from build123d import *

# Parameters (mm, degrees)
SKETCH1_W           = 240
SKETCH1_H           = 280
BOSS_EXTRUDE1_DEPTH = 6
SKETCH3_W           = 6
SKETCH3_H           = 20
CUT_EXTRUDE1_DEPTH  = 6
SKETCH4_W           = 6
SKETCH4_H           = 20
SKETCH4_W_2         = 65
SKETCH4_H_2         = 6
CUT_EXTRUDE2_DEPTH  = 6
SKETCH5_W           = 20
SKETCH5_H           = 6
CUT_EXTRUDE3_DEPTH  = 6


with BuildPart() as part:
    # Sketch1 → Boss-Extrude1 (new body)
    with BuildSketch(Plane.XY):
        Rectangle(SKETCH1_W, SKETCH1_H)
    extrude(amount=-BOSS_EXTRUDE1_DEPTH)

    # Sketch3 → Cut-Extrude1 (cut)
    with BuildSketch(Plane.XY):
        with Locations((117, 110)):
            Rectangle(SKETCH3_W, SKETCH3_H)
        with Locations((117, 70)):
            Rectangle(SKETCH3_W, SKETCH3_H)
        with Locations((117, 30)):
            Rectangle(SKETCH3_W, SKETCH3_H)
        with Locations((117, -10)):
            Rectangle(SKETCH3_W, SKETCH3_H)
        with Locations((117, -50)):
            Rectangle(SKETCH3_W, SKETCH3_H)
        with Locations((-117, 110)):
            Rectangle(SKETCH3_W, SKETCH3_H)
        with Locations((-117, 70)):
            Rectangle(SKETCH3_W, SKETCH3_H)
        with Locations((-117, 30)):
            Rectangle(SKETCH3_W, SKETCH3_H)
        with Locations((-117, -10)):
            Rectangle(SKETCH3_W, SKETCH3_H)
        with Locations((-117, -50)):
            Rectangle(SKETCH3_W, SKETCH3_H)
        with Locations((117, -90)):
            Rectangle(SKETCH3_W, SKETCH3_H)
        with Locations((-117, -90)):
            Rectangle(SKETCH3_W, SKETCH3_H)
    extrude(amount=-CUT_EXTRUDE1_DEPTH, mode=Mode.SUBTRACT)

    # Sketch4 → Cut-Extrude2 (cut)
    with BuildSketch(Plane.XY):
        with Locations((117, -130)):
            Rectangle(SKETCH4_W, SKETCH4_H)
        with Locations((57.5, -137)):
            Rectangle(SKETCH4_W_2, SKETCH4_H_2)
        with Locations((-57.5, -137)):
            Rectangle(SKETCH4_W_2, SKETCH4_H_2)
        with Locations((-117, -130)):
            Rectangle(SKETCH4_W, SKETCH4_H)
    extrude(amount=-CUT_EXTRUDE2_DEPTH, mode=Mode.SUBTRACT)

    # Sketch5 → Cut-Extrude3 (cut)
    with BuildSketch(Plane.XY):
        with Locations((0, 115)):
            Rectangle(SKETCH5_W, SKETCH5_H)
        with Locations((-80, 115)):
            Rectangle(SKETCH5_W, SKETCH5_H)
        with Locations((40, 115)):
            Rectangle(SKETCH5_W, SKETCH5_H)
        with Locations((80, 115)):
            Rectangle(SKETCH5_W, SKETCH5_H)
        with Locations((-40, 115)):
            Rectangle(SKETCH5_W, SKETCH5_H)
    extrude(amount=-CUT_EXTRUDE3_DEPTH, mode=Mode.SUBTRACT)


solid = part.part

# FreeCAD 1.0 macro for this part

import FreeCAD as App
import Part
import Sketcher

V = App.Vector


def add_polygon(sketch, points):
    """Adds a closed chain of lines whose ends are joined by coincident constraints."""
    first, n = sketch.GeometryCount, len(points)
    for a, b in zip(points, points[1:] + points[:1]):
        sketch.addGeometry(Part.LineSegment(App.Vector(*a, 0), App.Vector(*b, 0)), False)
    for i in range(n):
        sketch.addConstraint(Sketcher.Constraint("Coincident", first + i, 2, first + (i + 1) % n, 1))

doc = App.newDocument("Part")
params = doc.addObject("Spreadsheet::Sheet", "Params")
for row, (alias, value) in enumerate([
    ("sketch1_width", "240 mm"),
    ("sketch1_height", "280 mm"),
    ("pad1_length", "6 mm"),
    ("sketch2_width", "6 mm"),
    ("sketch2_height", "20 mm"),
    ("pocket1_length", "6 mm"),
    ("sketch3_width", "6 mm"),
    ("sketch3_width2", "65 mm"),
    ("sketch3_height", "20 mm"),
    ("pocket2_length", "6 mm"),
    ("sketch4_width", "20 mm"),
    ("sketch4_height", "6 mm"),
    ("pocket3_length", "6 mm"),
], start=1):
    params.set(f"A{row}", alias)
    params.set(f"B{row}", "=" + value)
    params.setAlias(f"B{row}", alias)

body = doc.addObject("PartDesign::Body", "Body")

# Sketch on XY plane
sketch1 = doc.addObject("Sketcher::SketchObject", "Sketch")
body.addObject(sketch1)
sketch1.AttachmentSupport = (doc.XY_Plane, [""])
sketch1.MapMode = "FlatFace"
add_polygon(sketch1, [(-120, 140), (-120, -140), (120, -140), (120, 140)])  # lines 0-3
sketch1.addConstraint(Sketcher.Constraint("Vertical", 0))
sketch1.addConstraint(Sketcher.Constraint("Horizontal", 1))
sketch1.addConstraint(Sketcher.Constraint("Vertical", 2))
sketch1.addConstraint(Sketcher.Constraint("Horizontal", 3))
sketch1.addConstraint(Sketcher.Constraint("Symmetric", 0, 2, 2, 2, -1, 1))
sketch1.addConstraint(Sketcher.Constraint("DistanceX", 1, 1, 1, 2, 240.0))
sketch1.addConstraint(Sketcher.Constraint("DistanceY", 0, 2, 0, 1, 280.0))
sketch1.setExpression("Constraints[9]", "Params.sketch1_width")
sketch1.setExpression("Constraints[10]", "Params.sketch1_height")
pad1 = doc.addObject("PartDesign::Pad", "Pad")
body.addObject(pad1)
pad1.Profile = sketch1
pad1.setExpression("Length", "Params.pad1_length")
pad1.Reversed = True

# Sketch on XY plane
sketch2 = doc.addObject("Sketcher::SketchObject", "Sketch001")
body.addObject(sketch2)
sketch2.AttachmentSupport = (doc.XY_Plane, [""])
sketch2.MapMode = "FlatFace"
add_polygon(sketch2, [(114, 120), (114, 100), (120, 100), (120, 120)])  # lines 0-3
add_polygon(sketch2, [(114, 80), (114, 60), (120, 60), (120, 80)])  # lines 4-7
add_polygon(sketch2, [(114, 40), (114, 20), (120, 20), (120, 40)])  # lines 8-11
add_polygon(sketch2, [(114, 0), (114, -20), (120, -20), (120, 0)])  # lines 12-15
add_polygon(sketch2, [(114, -40), (114, -60), (120, -60), (120, -40)])  # lines 16-19
add_polygon(sketch2, [(-120, 120), (-120, 100), (-114, 100), (-114, 120)])  # lines 20-23
add_polygon(sketch2, [(-120, 80), (-120, 60), (-114, 60), (-114, 80)])  # lines 24-27
add_polygon(sketch2, [(-120, 40), (-120, 20), (-114, 20), (-114, 40)])  # lines 28-31
add_polygon(sketch2, [(-120, 0), (-120, -20), (-114, -20), (-114, 0)])  # lines 32-35
add_polygon(sketch2, [(-120, -40), (-120, -60), (-114, -60), (-114, -40)])  # lines 36-39
add_polygon(sketch2, [(114, -80), (114, -100), (120, -100), (120, -80)])  # lines 40-43
add_polygon(sketch2, [(-120, -80), (-120, -100), (-114, -100), (-114, -80)])  # lines 44-47
sketch2.addConstraint(Sketcher.Constraint("Vertical", 0))
sketch2.addConstraint(Sketcher.Constraint("Horizontal", 1))
sketch2.addConstraint(Sketcher.Constraint("Vertical", 2))
sketch2.addConstraint(Sketcher.Constraint("Horizontal", 3))
sketch2.addConstraint(Sketcher.Constraint("Vertical", 4))
sketch2.addConstraint(Sketcher.Constraint("Horizontal", 5))
sketch2.addConstraint(Sketcher.Constraint("Vertical", 6))
sketch2.addConstraint(Sketcher.Constraint("Horizontal", 7))
sketch2.addConstraint(Sketcher.Constraint("Vertical", 8))
sketch2.addConstraint(Sketcher.Constraint("Horizontal", 9))
sketch2.addConstraint(Sketcher.Constraint("Vertical", 10))
sketch2.addConstraint(Sketcher.Constraint("Horizontal", 11))
sketch2.addConstraint(Sketcher.Constraint("Vertical", 12))
sketch2.addConstraint(Sketcher.Constraint("Horizontal", 13))
sketch2.addConstraint(Sketcher.Constraint("Vertical", 14))
sketch2.addConstraint(Sketcher.Constraint("Horizontal", 15))
sketch2.addConstraint(Sketcher.Constraint("Vertical", 16))
sketch2.addConstraint(Sketcher.Constraint("Horizontal", 17))
sketch2.addConstraint(Sketcher.Constraint("Vertical", 18))
sketch2.addConstraint(Sketcher.Constraint("Horizontal", 19))
sketch2.addConstraint(Sketcher.Constraint("Vertical", 20))
sketch2.addConstraint(Sketcher.Constraint("Horizontal", 21))
sketch2.addConstraint(Sketcher.Constraint("Vertical", 22))
sketch2.addConstraint(Sketcher.Constraint("Horizontal", 23))
sketch2.addConstraint(Sketcher.Constraint("Vertical", 24))
sketch2.addConstraint(Sketcher.Constraint("Horizontal", 25))
sketch2.addConstraint(Sketcher.Constraint("Vertical", 26))
sketch2.addConstraint(Sketcher.Constraint("Horizontal", 27))
sketch2.addConstraint(Sketcher.Constraint("Vertical", 28))
sketch2.addConstraint(Sketcher.Constraint("Horizontal", 29))
sketch2.addConstraint(Sketcher.Constraint("Vertical", 30))
sketch2.addConstraint(Sketcher.Constraint("Horizontal", 31))
sketch2.addConstraint(Sketcher.Constraint("Vertical", 32))
sketch2.addConstraint(Sketcher.Constraint("Horizontal", 33))
sketch2.addConstraint(Sketcher.Constraint("Vertical", 34))
sketch2.addConstraint(Sketcher.Constraint("Horizontal", 35))
sketch2.addConstraint(Sketcher.Constraint("Vertical", 36))
sketch2.addConstraint(Sketcher.Constraint("Horizontal", 37))
sketch2.addConstraint(Sketcher.Constraint("Vertical", 38))
sketch2.addConstraint(Sketcher.Constraint("Horizontal", 39))
sketch2.addConstraint(Sketcher.Constraint("Vertical", 40))
sketch2.addConstraint(Sketcher.Constraint("Horizontal", 41))
sketch2.addConstraint(Sketcher.Constraint("Vertical", 42))
sketch2.addConstraint(Sketcher.Constraint("Horizontal", 43))
sketch2.addConstraint(Sketcher.Constraint("Vertical", 44))
sketch2.addConstraint(Sketcher.Constraint("Horizontal", 45))
sketch2.addConstraint(Sketcher.Constraint("Vertical", 46))
sketch2.addConstraint(Sketcher.Constraint("Horizontal", 47))
sketch2.addConstraint(Sketcher.Constraint("Symmetric", 17, 2, 24, 2, -1, 1))
sketch2.addConstraint(Sketcher.Constraint("Symmetric", 13, 2, 28, 2, -1, 1))
sketch2.addConstraint(Sketcher.Constraint("Symmetric", 19, 2, 30, 2, -1, 1))
sketch2.addConstraint(Sketcher.Constraint("Symmetric", 9, 2, 32, 2, -1, 1))
sketch2.addConstraint(Sketcher.Constraint("Symmetric", 15, 2, 34, 2, -1, 1))
sketch2.addConstraint(Sketcher.Constraint("Symmetric", 5, 2, 36, 2, -1, 1))
sketch2.addConstraint(Sketcher.Constraint("Symmetric", 11, 2, 38, 2, -1, 1))
sketch2.addConstraint(Sketcher.Constraint("Symmetric", 21, 2, 40, 2, -1, 1))
sketch2.addConstraint(Sketcher.Constraint("Symmetric", 27, 2, 42, 2, -1, 1))
sketch2.addConstraint(Sketcher.Constraint("Symmetric", 1, 2, 44, 2, -1, 1))
sketch2.addConstraint(Sketcher.Constraint("Symmetric", 7, 2, 46, 2, -1, 1))
sketch2.addConstraint(Sketcher.Constraint("Symmetric", 1, 2, 20, 2, -2))
sketch2.addConstraint(Sketcher.Constraint("Symmetric", 3, 2, 22, 2, -2))
sketch2.addConstraint(Sketcher.Constraint("Symmetric", 5, 2, 24, 2, -2))
sketch2.addConstraint(Sketcher.Constraint("Symmetric", 7, 2, 26, 2, -2))
sketch2.addConstraint(Sketcher.Constraint("Symmetric", 9, 2, 28, 2, -2))
sketch2.addConstraint(Sketcher.Constraint("Symmetric", 11, 2, 30, 2, -2))
sketch2.addConstraint(Sketcher.Constraint("PointOnObject", 14, 2, -1))
sketch2.addConstraint(Sketcher.Constraint("Vertical", 3, 2, 4, 2))
sketch2.addConstraint(Sketcher.Constraint("Vertical", 2, 2, 5, 2))
sketch2.addConstraint(Sketcher.Constraint("Vertical", 7, 2, 8, 2))
sketch2.addConstraint(Sketcher.Constraint("Vertical", 6, 2, 9, 2))
sketch2.addConstraint(Sketcher.Constraint("Vertical", 11, 2, 12, 2))
sketch2.addConstraint(Sketcher.Constraint("Equal", 2, 4))
sketch2.addConstraint(Sketcher.Constraint("Equal", 6, 8))
sketch2.addConstraint(Sketcher.Constraint("Equal", 10, 12))
sketch2.addConstraint(Sketcher.Constraint("Equal", 14, 16))
sketch2.addConstraint(Sketcher.Constraint("Equal", 38, 40))
sketch2.addConstraint(Sketcher.Constraint("DistanceX", 1, 1, 1, 2, 6.0))
sketch2.addConstraint(Sketcher.Constraint("DistanceY", 0, 2, 0, 1, 20.0))
sketch2.addConstraint(Sketcher.Constraint("DistanceX", -1, 1, 0, 2, 114.0))
sketch2.setExpression("Constraints[124]", "Params.sketch2_width")
sketch2.setExpression("Constraints[125]", "Params.sketch2_height")
pocket1 = doc.addObject("PartDesign::Pocket", "Pocket")
body.addObject(pocket1)
pocket1.Profile = sketch2
pocket1.setExpression("Length", "Params.pocket1_length")

# Sketch on XY plane
sketch3 = doc.addObject("Sketcher::SketchObject", "Sketch002")
body.addObject(sketch3)
sketch3.AttachmentSupport = (doc.XY_Plane, [""])
sketch3.MapMode = "FlatFace"
add_polygon(sketch3, [(114, -120), (114, -140), (120, -140), (120, -120)])  # lines 0-3
add_polygon(sketch3, [(25, -134), (25, -140), (90, -140), (90, -134)])  # lines 4-7
add_polygon(sketch3, [(-90, -134), (-90, -140), (-25, -140), (-25, -134)])  # lines 8-11
add_polygon(sketch3, [(-120, -120), (-120, -140), (-114, -140), (-114, -120)])  # lines 12-15
sketch3.addConstraint(Sketcher.Constraint("Vertical", 0))
sketch3.addConstraint(Sketcher.Constraint("Horizontal", 1))
sketch3.addConstraint(Sketcher.Constraint("Vertical", 2))
sketch3.addConstraint(Sketcher.Constraint("Horizontal", 3))
sketch3.addConstraint(Sketcher.Constraint("Vertical", 4))
sketch3.addConstraint(Sketcher.Constraint("Horizontal", 5))
sketch3.addConstraint(Sketcher.Constraint("Vertical", 6))
sketch3.addConstraint(Sketcher.Constraint("Horizontal", 7))
sketch3.addConstraint(Sketcher.Constraint("Vertical", 8))
sketch3.addConstraint(Sketcher.Constraint("Horizontal", 9))
sketch3.addConstraint(Sketcher.Constraint("Vertical", 10))
sketch3.addConstraint(Sketcher.Constraint("Horizontal", 11))
sketch3.addConstraint(Sketcher.Constraint("Vertical", 12))
sketch3.addConstraint(Sketcher.Constraint("Horizontal", 13))
sketch3.addConstraint(Sketcher.Constraint("Vertical", 14))
sketch3.addConstraint(Sketcher.Constraint("Horizontal", 15))
sketch3.addConstraint(Sketcher.Constraint("Symmetric", 5, 2, 8, 2, -2))
sketch3.addConstraint(Sketcher.Constraint("Symmetric", 7, 2, 10, 2, -2))
sketch3.addConstraint(Sketcher.Constraint("Symmetric", 1, 2, 12, 2, -2))
sketch3.addConstraint(Sketcher.Constraint("Symmetric", 3, 2, 14, 2, -2))
sketch3.addConstraint(Sketcher.Constraint("Horizontal", 1, 2, 4, 2))
sketch3.addConstraint(Sketcher.Constraint("Equal", 15, 4))
sketch3.addConstraint(Sketcher.Constraint("DistanceX", 1, 1, 1, 2, 6.0))
sketch3.addConstraint(Sketcher.Constraint("DistanceX", 5, 1, 5, 2, 65.0))
sketch3.addConstraint(Sketcher.Constraint("DistanceY", 0, 2, 0, 1, 20.0))
sketch3.addConstraint(Sketcher.Constraint("DistanceX", -1, 1, 0, 2, 114.0))
sketch3.addConstraint(Sketcher.Constraint("DistanceY", 0, 2, -1, 1, 140.0))
sketch3.addConstraint(Sketcher.Constraint("DistanceX", -1, 1, 4, 2, 25.0))
sketch3.setExpression("Constraints[38]", "Params.sketch3_width")
sketch3.setExpression("Constraints[39]", "Params.sketch3_width2")
sketch3.setExpression("Constraints[40]", "Params.sketch3_height")
pocket2 = doc.addObject("PartDesign::Pocket", "Pocket001")
body.addObject(pocket2)
pocket2.Profile = sketch3
pocket2.setExpression("Length", "Params.pocket2_length")

# Sketch on XY plane
sketch4 = doc.addObject("Sketcher::SketchObject", "Sketch003")
body.addObject(sketch4)
sketch4.AttachmentSupport = (doc.XY_Plane, [""])
sketch4.MapMode = "FlatFace"
add_polygon(sketch4, [(-10, 118), (-10, 112), (10, 112), (10, 118)])  # lines 0-3
add_polygon(sketch4, [(-90, 118), (-90, 112), (-70, 112), (-70, 118)])  # lines 4-7
add_polygon(sketch4, [(30, 118), (30, 112), (50, 112), (50, 118)])  # lines 8-11
add_polygon(sketch4, [(70, 118), (70, 112), (90, 112), (90, 118)])  # lines 12-15
add_polygon(sketch4, [(-50, 118), (-50, 112), (-30, 112), (-30, 118)])  # lines 16-19
sketch4.addConstraint(Sketcher.Constraint("Vertical", 0))
sketch4.addConstraint(Sketcher.Constraint("Horizontal", 1))
sketch4.addConstraint(Sketcher.Constraint("Vertical", 2))
sketch4.addConstraint(Sketcher.Constraint("Horizontal", 3))
sketch4.addConstraint(Sketcher.Constraint("Vertical", 4))
sketch4.addConstraint(Sketcher.Constraint("Horizontal", 5))
sketch4.addConstraint(Sketcher.Constraint("Vertical", 6))
sketch4.addConstraint(Sketcher.Constraint("Horizontal", 7))
sketch4.addConstraint(Sketcher.Constraint("Vertical", 8))
sketch4.addConstraint(Sketcher.Constraint("Horizontal", 9))
sketch4.addConstraint(Sketcher.Constraint("Vertical", 10))
sketch4.addConstraint(Sketcher.Constraint("Horizontal", 11))
sketch4.addConstraint(Sketcher.Constraint("Vertical", 12))
sketch4.addConstraint(Sketcher.Constraint("Horizontal", 13))
sketch4.addConstraint(Sketcher.Constraint("Vertical", 14))
sketch4.addConstraint(Sketcher.Constraint("Horizontal", 15))
sketch4.addConstraint(Sketcher.Constraint("Vertical", 16))
sketch4.addConstraint(Sketcher.Constraint("Horizontal", 17))
sketch4.addConstraint(Sketcher.Constraint("Vertical", 18))
sketch4.addConstraint(Sketcher.Constraint("Horizontal", 19))
sketch4.addConstraint(Sketcher.Constraint("Symmetric", 5, 2, 12, 2, -2))
sketch4.addConstraint(Sketcher.Constraint("Symmetric", 7, 2, 14, 2, -2))
sketch4.addConstraint(Sketcher.Constraint("Symmetric", 9, 2, 16, 2, -2))
sketch4.addConstraint(Sketcher.Constraint("Symmetric", 11, 2, 18, 2, -2))
sketch4.addConstraint(Sketcher.Constraint("Horizontal", 1, 2, 4, 2))
sketch4.addConstraint(Sketcher.Constraint("Horizontal", 3, 2, 6, 2))
sketch4.addConstraint(Sketcher.Constraint("Horizontal", 5, 2, 8, 2))
sketch4.addConstraint(Sketcher.Constraint("Horizontal", 7, 2, 10, 2))
sketch4.addConstraint(Sketcher.Constraint("Equal", 3, 5))
sketch4.addConstraint(Sketcher.Constraint("Equal", 7, 9))
sketch4.addConstraint(Sketcher.Constraint("DistanceX", 1, 1, 1, 2, 20.0))
sketch4.addConstraint(Sketcher.Constraint("DistanceY", 0, 2, 0, 1, 6.0))
sketch4.addConstraint(Sketcher.Constraint("DistanceX", 0, 2, -1, 1, 10.0))
sketch4.addConstraint(Sketcher.Constraint("DistanceY", -1, 1, 0, 2, 112.0))
sketch4.addConstraint(Sketcher.Constraint("DistanceX", 4, 2, -1, 1, 90.0))
sketch4.addConstraint(Sketcher.Constraint("DistanceX", -1, 1, 8, 2, 30.0))
sketch4.setExpression("Constraints[50]", "Params.sketch4_width")
sketch4.setExpression("Constraints[51]", "Params.sketch4_height")
pocket3 = doc.addObject("PartDesign::Pocket", "Pocket002")
body.addObject(pocket3)
pocket3.Profile = sketch4
pocket3.setExpression("Length", "Params.pocket3_length")

doc.recompute()
